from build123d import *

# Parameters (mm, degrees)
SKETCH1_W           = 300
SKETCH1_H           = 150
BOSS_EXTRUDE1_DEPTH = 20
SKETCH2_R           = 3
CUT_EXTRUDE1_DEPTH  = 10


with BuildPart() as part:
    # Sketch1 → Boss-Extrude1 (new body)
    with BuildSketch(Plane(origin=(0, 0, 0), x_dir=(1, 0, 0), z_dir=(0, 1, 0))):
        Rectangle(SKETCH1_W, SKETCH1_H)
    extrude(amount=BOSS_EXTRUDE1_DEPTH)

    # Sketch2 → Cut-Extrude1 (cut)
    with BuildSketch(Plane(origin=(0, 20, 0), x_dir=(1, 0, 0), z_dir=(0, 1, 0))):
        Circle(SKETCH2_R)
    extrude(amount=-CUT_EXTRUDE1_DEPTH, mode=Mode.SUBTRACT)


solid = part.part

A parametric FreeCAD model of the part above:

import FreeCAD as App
import Part
import Sketcher
from FreeCAD import Vector


def add_polygon(sketch, points):
    """Adds a closed chain of lines whose ends are joined by coincident constraints."""
    first, n = sketch.GeometryCount, len(points)
    for a, b in zip(points, points[1:] + points[:1]):
        sketch.addGeometry(Part.LineSegment(App.Vector(*a, 0), App.Vector(*b, 0)), False)
    for i in range(n):
        sketch.addConstraint(Sketcher.Constraint("Coincident", first + i, 2, first + (i + 1) % n, 1))

doc = App.newDocument("Part")
params = doc.addObject("Spreadsheet::Sheet", "Params")
for row, (alias, value) in enumerate([
    ("sketch1_width", "300 mm"),
    ("sketch1_height", "150 mm"),
    ("pad1_length", "20 mm"),
    ("sketch2_diameter", "6 mm"),
    ("pocket1_length", "10 mm"),
], start=1):
    params.set(f"A{row}", alias)
    params.set(f"B{row}", "=" + value)
    params.setAlias(f"B{row}", alias)

body = doc.addObject("PartDesign::Body", "Body")

sketch1 = body.newObject("Sketcher::SketchObject", "Sketch")
sketch1.AttachmentSupport = (doc.getObject("XZ_Plane"), [""])
sketch1.MapMode = "FlatFace"
add_polygon(sketch1, [(-150, -75), (-150, 75), (150, 75), (150, -75)])
sketch1.addConstraint(Sketcher.Constraint("Vertical", 0))
sketch1.addConstraint(Sketcher.Constraint("Horizontal", 1))
sketch1.addConstraint(Sketcher.Constraint("Vertical", 2))
sketch1.addConstraint(Sketcher.Constraint("Horizontal", 3))
sketch1.addConstraint(Sketcher.Constraint("Symmetric", 0, 2, 2, 2, -1, 1))
sketch1.addConstraint(Sketcher.Constraint("DistanceX", 1, 1, 1, 2, 300.0))
sketch1.addConstraint(Sketcher.Constraint("DistanceY", 0, 1, 0, 2, 150.0))
sketch1.setExpression("Constraints[9]", "Params.sketch1_width")
sketch1.setExpression("Constraints[10]", "Params.sketch1_height")
pad1 = body.newObject("PartDesign::Pad", "Pad")
pad1.Profile = sketch1
pad1.setExpression("Length", "Params.pad1_length")
pad1.Reversed = True

sketch2 = body.newObject("Sketcher::SketchObject", "Sketch001")
sketch2.AttachmentSupport = (doc.getObject("XZ_Plane"), [""])
sketch2.MapMode = "FlatFace"
sketch2.AttachmentOffset = App.Placement(Vector(0, 0, -20), App.Rotation())
sketch2.addGeometry(Part.Circle(Vector(0, 0, 0), Vector(0, 0, 1), 3), False)
sketch2.addConstraint(Sketcher.Constraint("Coincident", 0, 3, -1, 1))
sketch2.addConstraint(Sketcher.Constraint("Diameter", 0, 6.0))
sketch2.setExpression("Constraints[1]", "Params.sketch2_diameter")
pocket1 = body.newObject("PartDesign::Pocket", "Pocket")
pocket1.Profile = sketch2
pocket1.setExpression("Length", "Params.pocket1_length")
pocket1.Reversed = True

doc.recompute()
